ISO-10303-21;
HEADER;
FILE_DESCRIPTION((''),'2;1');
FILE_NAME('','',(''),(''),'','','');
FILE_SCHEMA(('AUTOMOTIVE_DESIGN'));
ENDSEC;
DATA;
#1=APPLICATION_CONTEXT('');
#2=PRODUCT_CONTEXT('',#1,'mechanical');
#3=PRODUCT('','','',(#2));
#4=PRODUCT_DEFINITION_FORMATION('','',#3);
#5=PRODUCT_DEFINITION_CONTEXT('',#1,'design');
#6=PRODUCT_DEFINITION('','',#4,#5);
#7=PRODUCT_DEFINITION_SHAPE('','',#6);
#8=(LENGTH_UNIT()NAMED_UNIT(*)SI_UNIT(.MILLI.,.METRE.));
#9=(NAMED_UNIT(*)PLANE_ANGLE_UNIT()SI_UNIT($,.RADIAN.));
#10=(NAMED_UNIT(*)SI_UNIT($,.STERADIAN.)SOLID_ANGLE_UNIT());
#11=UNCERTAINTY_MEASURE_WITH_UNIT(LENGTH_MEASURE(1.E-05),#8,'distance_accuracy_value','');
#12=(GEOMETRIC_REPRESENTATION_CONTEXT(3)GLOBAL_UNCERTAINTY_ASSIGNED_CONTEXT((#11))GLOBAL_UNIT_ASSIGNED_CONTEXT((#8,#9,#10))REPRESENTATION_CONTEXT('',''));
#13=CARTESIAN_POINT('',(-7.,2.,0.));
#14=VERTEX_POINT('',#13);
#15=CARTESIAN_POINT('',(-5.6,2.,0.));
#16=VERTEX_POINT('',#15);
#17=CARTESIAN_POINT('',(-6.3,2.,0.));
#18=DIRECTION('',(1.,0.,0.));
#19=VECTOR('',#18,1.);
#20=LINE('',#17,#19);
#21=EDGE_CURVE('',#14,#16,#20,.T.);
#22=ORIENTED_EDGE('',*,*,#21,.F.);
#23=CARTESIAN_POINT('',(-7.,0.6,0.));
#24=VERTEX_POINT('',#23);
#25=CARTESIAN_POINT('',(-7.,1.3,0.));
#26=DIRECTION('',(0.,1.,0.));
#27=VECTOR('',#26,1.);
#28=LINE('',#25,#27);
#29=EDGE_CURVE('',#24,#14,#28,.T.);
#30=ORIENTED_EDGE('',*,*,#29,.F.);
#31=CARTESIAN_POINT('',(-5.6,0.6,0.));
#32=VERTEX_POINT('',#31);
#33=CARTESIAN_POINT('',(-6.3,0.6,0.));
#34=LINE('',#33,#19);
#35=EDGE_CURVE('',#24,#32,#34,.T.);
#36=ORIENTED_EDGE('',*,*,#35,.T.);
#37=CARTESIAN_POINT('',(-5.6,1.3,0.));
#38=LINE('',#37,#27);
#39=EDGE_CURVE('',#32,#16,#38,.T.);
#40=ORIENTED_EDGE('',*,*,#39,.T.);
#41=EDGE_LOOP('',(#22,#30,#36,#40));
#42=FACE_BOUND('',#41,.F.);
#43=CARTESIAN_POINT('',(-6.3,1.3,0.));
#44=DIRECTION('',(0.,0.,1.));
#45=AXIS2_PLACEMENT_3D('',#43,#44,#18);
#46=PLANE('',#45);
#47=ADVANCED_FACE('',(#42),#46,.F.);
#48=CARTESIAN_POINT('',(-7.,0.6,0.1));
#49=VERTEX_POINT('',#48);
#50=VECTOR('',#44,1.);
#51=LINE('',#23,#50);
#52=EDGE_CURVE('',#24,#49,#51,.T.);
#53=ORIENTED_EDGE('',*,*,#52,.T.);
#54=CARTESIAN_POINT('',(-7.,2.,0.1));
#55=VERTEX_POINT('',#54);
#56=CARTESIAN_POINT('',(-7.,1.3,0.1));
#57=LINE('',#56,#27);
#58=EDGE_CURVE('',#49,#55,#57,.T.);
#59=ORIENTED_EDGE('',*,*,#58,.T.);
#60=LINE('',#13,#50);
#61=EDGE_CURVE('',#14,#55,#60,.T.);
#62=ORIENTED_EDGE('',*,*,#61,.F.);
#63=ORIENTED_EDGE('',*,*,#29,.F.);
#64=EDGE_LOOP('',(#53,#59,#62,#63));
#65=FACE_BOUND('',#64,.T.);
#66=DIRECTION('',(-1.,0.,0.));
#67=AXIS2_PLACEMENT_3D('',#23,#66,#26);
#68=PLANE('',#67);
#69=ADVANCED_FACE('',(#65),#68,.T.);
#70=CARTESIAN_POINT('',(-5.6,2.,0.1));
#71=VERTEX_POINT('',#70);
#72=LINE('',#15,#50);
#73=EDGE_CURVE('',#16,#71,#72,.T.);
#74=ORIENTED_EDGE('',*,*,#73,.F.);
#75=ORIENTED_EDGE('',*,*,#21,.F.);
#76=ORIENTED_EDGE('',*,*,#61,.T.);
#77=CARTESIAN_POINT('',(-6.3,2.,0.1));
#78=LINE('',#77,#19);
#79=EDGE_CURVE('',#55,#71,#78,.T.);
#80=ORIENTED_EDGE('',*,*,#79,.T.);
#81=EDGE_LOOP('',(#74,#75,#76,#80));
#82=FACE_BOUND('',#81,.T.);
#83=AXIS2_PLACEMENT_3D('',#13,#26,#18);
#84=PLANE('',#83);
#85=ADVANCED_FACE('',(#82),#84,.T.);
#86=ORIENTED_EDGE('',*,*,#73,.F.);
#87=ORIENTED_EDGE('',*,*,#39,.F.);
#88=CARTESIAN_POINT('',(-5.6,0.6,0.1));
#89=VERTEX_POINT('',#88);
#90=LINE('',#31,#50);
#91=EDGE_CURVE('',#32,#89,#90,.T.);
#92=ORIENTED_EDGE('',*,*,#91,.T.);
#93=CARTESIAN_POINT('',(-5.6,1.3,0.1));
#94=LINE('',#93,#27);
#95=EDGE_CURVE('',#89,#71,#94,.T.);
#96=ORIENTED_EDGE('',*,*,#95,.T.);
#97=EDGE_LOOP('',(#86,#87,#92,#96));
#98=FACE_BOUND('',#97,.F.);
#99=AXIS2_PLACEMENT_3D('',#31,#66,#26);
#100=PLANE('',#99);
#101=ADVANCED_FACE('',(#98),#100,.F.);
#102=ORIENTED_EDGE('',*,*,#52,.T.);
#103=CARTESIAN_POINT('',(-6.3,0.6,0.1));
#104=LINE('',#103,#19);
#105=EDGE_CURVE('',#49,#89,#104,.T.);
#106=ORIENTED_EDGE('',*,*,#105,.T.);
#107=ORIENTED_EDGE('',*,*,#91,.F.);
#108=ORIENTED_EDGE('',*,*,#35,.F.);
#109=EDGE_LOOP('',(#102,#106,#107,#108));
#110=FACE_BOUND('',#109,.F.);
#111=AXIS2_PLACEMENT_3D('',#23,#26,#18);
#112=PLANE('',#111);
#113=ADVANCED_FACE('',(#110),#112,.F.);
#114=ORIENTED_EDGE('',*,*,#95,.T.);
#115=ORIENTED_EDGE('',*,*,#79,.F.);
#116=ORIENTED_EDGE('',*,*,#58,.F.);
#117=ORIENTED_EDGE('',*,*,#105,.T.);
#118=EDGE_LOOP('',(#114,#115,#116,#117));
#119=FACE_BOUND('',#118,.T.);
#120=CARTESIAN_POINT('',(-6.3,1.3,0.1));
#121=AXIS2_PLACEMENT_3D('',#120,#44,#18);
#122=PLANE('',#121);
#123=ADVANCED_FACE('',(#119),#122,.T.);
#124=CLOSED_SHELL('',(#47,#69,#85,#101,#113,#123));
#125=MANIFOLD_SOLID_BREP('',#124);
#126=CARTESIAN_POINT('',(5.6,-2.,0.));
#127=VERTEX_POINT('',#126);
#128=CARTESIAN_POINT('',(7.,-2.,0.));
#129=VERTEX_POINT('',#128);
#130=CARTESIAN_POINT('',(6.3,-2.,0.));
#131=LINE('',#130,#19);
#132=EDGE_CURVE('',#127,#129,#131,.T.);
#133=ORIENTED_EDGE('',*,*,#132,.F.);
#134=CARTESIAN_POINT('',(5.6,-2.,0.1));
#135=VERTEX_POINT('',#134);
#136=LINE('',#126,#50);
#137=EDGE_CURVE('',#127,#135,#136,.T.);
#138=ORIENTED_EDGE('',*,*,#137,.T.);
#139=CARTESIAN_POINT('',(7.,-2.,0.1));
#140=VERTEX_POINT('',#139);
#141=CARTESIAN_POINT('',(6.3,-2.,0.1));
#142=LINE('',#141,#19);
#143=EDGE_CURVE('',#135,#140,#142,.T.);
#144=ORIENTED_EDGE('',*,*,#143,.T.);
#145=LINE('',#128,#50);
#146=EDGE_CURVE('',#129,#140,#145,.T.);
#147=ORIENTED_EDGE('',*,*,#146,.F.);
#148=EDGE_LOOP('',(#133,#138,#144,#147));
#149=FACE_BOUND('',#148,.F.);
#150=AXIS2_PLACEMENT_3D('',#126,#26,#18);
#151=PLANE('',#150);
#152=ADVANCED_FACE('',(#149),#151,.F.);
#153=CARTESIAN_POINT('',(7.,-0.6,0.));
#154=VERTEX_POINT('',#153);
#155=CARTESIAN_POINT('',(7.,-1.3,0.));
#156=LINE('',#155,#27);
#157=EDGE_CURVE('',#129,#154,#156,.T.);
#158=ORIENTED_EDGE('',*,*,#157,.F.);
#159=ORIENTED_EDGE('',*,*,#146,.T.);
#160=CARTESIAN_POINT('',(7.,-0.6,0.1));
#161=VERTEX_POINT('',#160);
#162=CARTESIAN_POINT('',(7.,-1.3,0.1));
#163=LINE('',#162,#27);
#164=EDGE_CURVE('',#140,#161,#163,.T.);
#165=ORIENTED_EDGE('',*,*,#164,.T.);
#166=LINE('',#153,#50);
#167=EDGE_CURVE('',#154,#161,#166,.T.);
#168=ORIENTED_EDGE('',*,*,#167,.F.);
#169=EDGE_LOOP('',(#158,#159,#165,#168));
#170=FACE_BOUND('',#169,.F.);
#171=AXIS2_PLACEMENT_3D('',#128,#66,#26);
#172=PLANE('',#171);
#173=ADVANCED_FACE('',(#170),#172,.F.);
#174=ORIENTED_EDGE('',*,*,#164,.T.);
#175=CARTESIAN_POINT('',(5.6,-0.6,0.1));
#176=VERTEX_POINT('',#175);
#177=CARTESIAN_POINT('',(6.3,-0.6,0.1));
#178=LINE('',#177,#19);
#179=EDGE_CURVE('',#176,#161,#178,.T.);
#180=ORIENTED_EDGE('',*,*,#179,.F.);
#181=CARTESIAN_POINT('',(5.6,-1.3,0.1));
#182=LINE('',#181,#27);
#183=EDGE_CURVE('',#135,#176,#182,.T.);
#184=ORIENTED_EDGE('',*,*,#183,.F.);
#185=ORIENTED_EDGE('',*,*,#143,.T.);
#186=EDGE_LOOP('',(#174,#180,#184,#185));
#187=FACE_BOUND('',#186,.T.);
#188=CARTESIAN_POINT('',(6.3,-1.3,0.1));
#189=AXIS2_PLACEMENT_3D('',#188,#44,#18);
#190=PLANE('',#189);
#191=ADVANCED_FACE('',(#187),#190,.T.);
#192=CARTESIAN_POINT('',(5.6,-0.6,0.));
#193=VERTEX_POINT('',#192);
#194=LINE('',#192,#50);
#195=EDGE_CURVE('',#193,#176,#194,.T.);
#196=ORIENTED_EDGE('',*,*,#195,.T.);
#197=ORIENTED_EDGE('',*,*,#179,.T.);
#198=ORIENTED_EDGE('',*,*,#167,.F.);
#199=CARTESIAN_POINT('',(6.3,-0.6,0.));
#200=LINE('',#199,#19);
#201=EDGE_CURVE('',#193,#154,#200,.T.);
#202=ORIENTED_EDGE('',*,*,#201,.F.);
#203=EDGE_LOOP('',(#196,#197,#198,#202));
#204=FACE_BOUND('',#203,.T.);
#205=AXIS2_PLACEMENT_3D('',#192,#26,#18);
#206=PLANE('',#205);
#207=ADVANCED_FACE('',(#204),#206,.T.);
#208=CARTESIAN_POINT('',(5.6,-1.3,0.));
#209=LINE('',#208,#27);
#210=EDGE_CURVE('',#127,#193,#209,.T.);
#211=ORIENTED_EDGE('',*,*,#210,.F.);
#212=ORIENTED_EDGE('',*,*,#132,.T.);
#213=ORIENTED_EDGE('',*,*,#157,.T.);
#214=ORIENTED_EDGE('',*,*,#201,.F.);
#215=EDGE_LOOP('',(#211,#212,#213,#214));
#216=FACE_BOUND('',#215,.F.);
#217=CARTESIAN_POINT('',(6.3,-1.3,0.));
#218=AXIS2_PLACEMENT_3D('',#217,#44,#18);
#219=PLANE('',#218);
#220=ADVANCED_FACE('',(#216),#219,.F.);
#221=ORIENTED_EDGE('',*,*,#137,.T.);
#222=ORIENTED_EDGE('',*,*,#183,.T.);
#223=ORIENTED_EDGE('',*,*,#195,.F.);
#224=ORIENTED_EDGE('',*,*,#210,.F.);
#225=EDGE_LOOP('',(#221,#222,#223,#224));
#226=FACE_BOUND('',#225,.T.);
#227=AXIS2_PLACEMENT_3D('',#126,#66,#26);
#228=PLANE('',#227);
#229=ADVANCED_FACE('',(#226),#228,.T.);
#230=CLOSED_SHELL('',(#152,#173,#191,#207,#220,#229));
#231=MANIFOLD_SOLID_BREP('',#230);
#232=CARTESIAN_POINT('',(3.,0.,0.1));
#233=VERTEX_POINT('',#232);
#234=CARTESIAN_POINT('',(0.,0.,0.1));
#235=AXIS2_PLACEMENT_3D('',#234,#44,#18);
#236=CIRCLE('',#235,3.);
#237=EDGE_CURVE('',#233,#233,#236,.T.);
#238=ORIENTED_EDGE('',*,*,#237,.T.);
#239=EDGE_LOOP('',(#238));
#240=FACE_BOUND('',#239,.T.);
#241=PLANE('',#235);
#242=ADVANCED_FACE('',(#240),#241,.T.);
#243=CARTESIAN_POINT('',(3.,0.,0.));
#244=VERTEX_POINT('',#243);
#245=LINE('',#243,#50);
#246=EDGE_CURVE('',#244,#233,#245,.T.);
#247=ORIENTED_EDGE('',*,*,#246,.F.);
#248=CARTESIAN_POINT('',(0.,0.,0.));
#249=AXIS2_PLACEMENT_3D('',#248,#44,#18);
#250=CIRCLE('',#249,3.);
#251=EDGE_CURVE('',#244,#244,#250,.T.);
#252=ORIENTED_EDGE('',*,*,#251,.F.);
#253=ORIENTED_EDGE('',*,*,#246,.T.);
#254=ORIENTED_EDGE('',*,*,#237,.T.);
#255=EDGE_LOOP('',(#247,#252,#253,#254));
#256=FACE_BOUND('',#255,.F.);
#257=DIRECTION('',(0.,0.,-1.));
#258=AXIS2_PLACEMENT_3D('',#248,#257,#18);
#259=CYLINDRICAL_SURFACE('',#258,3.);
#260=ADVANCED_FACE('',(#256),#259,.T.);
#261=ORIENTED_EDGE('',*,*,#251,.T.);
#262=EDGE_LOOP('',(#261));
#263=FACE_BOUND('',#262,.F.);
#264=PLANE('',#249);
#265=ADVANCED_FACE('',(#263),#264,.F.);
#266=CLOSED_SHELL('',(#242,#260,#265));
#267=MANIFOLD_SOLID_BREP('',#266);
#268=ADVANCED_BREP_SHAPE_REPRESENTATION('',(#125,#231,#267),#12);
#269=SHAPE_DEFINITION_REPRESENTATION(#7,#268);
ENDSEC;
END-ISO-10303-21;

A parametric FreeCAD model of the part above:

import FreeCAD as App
import Part
import Sketcher

V = App.Vector

doc = App.newDocument("Part")
body = doc.addObject("PartDesign::Body", "Body")
body.AllowCompound = True

# Sketch on XY plane
sketch1 = doc.addObject("Sketcher::SketchObject", "Sketch")
body.addObject(sketch1)
sketch1.AttachmentSupport = (doc.XY_Plane, [""])
sketch1.MapMode = "FlatFace"
sketch1.addGeometry([
    Part.Circle(V(0, 0, 0), V(0, 0, 1), 3),  # 0
    Part.LineSegment(V(5.6, -0.6, 0), V(5.6, -2, 0)),  # 1
    Part.LineSegment(V(5.6, -2, 0), V(7, -2, 0)),  # 2
    Part.LineSegment(V(7, -2, 0), V(7, -0.6, 0)),  # 3
    Part.LineSegment(V(7, -0.6, 0), V(5.6, -0.6, 0)),  # 4
    Part.LineSegment(V(-7, 2, 0), V(-7, 0.6, 0)),  # 5
    Part.LineSegment(V(-7, 0.6, 0), V(-5.6, 0.6, 0)),  # 6
    Part.LineSegment(V(-5.6, 0.6, 0), V(-5.6, 2, 0)),  # 7
    Part.LineSegment(V(-5.6, 2, 0), V(-7, 2, 0)),  # 8
], False)
sketch1.addConstraint([
    Sketcher.Constraint("Coincident", 1, 2, 2, 1),
    Sketcher.Constraint("Coincident", 2, 2, 3, 1),
    Sketcher.Constraint("Coincident", 3, 2, 4, 1),
    Sketcher.Constraint("Coincident", 4, 2, 1, 1),
    Sketcher.Constraint("Coincident", 5, 2, 6, 1),
    Sketcher.Constraint("Coincident", 6, 2, 7, 1),
    Sketcher.Constraint("Coincident", 7, 2, 8, 1),
    Sketcher.Constraint("Coincident", 8, 2, 5, 1),
    Sketcher.Constraint("Vertical", 1),
    Sketcher.Constraint("Horizontal", 2),
    Sketcher.Constraint("Vertical", 3),
    Sketcher.Constraint("Horizontal", 4),
    Sketcher.Constraint("Vertical", 5),
    Sketcher.Constraint("Horizontal", 6),
    Sketcher.Constraint("Vertical", 7),
    Sketcher.Constraint("Horizontal", 8),
    Sketcher.Constraint("Coincident", 0, 3, -1, 1),
    Sketcher.Constraint("Symmetric", 3, 2, 5, 2, -1, 1),
    Sketcher.Constraint("Symmetric", 1, 2, 7, 2, -1, 1),
    Sketcher.Constraint("Equal", 8, 1),
    Sketcher.Constraint("Diameter", 0, 6.0),
    Sketcher.Constraint("DistanceX", 2, 1, 2, 2, 1.4),
    Sketcher.Constraint("DistanceY", 1, 2, -1, 1, 2.0),
    Sketcher.Constraint("DistanceX", -1, 1, 2, 2, 7.0),
])
pad1 = doc.addObject("PartDesign::Pad", "Pad")
body.addObject(pad1)
pad1.Profile = sketch1
pad1.Length = 0.1

doc.recompute()
